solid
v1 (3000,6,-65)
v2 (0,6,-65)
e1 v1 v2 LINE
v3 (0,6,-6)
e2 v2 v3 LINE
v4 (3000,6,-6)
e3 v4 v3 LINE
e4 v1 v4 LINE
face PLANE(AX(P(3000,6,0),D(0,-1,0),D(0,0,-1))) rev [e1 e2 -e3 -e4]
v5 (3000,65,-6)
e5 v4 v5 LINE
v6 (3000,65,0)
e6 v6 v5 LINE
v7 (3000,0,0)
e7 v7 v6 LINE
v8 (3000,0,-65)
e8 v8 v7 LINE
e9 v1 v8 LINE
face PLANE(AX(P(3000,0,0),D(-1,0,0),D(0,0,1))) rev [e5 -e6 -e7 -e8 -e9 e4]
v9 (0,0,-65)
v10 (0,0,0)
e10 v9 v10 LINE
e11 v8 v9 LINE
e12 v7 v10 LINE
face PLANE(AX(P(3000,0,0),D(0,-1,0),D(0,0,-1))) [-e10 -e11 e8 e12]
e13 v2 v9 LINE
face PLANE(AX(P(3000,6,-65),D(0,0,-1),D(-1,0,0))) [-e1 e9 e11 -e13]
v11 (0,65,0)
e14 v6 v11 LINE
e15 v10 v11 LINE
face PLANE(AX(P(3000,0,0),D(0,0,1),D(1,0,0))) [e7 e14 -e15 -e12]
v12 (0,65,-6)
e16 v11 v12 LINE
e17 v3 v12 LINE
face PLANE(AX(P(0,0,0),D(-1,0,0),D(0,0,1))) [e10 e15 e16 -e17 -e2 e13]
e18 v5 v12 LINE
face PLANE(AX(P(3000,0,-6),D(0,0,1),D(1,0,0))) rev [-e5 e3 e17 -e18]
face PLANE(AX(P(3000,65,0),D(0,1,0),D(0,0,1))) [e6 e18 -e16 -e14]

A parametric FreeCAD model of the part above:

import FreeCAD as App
import Part
import Sketcher
Q = App.Units.Quantity


def add_polygon(sketch, points):
    """Adds a closed chain of lines whose ends are joined by coincident constraints."""
    first, n = sketch.GeometryCount, len(points)
    for a, b in zip(points, points[1:] + points[:1]):
        sketch.addGeometry(Part.LineSegment(App.Vector(*a, 0), App.Vector(*b, 0)), False)
    for i in range(n):
        sketch.addConstraint(Sketcher.Constraint("Coincident", first + i, 2, first + (i + 1) % n, 1))

doc = App.newDocument("Part")
body = doc.addObject("PartDesign::Body", "Body")

sketch1 = doc.addObject("Sketcher::SketchObject", "Sketch")
body.addObject(sketch1)
sketch1.AttachmentSupport = (doc.YZ_Plane, [""])
sketch1.MapMode = "FlatFace"
add_polygon(sketch1, [(65, 0), (0, 0), (0, -65), (6, -65), (6, -6), (65, -6)])
sketch1.addConstraint(Sketcher.Constraint("Horizontal", 0))
sketch1.addConstraint(Sketcher.Constraint("Vertical", 1))
sketch1.addConstraint(Sketcher.Constraint("Horizontal", 2))
sketch1.addConstraint(Sketcher.Constraint("Vertical", 3))
sketch1.addConstraint(Sketcher.Constraint("Horizontal", 4))
sketch1.addConstraint(Sketcher.Constraint("Vertical", 5))
sketch1.addConstraint(Sketcher.Constraint("Coincident", 0, 2, -1, 1))
sketch1.addConstraint(Sketcher.Constraint("Equal", 0, 1))
sketch1.addConstraint(Sketcher.Constraint("Equal", 4, 3))
sketch1.addConstraint(Sketcher.Constraint("DistanceX", 0, 2, 0, 1, Q("65 mm")))
sketch1.addConstraint(Sketcher.Constraint("DistanceX", 2, 1, 2, 2, Q("6 mm")))
pad1 = doc.addObject("PartDesign::Pad", "Pad")
body.addObject(pad1)
pad1.Profile = sketch1
pad1.Length = 3000

doc.recompute()
